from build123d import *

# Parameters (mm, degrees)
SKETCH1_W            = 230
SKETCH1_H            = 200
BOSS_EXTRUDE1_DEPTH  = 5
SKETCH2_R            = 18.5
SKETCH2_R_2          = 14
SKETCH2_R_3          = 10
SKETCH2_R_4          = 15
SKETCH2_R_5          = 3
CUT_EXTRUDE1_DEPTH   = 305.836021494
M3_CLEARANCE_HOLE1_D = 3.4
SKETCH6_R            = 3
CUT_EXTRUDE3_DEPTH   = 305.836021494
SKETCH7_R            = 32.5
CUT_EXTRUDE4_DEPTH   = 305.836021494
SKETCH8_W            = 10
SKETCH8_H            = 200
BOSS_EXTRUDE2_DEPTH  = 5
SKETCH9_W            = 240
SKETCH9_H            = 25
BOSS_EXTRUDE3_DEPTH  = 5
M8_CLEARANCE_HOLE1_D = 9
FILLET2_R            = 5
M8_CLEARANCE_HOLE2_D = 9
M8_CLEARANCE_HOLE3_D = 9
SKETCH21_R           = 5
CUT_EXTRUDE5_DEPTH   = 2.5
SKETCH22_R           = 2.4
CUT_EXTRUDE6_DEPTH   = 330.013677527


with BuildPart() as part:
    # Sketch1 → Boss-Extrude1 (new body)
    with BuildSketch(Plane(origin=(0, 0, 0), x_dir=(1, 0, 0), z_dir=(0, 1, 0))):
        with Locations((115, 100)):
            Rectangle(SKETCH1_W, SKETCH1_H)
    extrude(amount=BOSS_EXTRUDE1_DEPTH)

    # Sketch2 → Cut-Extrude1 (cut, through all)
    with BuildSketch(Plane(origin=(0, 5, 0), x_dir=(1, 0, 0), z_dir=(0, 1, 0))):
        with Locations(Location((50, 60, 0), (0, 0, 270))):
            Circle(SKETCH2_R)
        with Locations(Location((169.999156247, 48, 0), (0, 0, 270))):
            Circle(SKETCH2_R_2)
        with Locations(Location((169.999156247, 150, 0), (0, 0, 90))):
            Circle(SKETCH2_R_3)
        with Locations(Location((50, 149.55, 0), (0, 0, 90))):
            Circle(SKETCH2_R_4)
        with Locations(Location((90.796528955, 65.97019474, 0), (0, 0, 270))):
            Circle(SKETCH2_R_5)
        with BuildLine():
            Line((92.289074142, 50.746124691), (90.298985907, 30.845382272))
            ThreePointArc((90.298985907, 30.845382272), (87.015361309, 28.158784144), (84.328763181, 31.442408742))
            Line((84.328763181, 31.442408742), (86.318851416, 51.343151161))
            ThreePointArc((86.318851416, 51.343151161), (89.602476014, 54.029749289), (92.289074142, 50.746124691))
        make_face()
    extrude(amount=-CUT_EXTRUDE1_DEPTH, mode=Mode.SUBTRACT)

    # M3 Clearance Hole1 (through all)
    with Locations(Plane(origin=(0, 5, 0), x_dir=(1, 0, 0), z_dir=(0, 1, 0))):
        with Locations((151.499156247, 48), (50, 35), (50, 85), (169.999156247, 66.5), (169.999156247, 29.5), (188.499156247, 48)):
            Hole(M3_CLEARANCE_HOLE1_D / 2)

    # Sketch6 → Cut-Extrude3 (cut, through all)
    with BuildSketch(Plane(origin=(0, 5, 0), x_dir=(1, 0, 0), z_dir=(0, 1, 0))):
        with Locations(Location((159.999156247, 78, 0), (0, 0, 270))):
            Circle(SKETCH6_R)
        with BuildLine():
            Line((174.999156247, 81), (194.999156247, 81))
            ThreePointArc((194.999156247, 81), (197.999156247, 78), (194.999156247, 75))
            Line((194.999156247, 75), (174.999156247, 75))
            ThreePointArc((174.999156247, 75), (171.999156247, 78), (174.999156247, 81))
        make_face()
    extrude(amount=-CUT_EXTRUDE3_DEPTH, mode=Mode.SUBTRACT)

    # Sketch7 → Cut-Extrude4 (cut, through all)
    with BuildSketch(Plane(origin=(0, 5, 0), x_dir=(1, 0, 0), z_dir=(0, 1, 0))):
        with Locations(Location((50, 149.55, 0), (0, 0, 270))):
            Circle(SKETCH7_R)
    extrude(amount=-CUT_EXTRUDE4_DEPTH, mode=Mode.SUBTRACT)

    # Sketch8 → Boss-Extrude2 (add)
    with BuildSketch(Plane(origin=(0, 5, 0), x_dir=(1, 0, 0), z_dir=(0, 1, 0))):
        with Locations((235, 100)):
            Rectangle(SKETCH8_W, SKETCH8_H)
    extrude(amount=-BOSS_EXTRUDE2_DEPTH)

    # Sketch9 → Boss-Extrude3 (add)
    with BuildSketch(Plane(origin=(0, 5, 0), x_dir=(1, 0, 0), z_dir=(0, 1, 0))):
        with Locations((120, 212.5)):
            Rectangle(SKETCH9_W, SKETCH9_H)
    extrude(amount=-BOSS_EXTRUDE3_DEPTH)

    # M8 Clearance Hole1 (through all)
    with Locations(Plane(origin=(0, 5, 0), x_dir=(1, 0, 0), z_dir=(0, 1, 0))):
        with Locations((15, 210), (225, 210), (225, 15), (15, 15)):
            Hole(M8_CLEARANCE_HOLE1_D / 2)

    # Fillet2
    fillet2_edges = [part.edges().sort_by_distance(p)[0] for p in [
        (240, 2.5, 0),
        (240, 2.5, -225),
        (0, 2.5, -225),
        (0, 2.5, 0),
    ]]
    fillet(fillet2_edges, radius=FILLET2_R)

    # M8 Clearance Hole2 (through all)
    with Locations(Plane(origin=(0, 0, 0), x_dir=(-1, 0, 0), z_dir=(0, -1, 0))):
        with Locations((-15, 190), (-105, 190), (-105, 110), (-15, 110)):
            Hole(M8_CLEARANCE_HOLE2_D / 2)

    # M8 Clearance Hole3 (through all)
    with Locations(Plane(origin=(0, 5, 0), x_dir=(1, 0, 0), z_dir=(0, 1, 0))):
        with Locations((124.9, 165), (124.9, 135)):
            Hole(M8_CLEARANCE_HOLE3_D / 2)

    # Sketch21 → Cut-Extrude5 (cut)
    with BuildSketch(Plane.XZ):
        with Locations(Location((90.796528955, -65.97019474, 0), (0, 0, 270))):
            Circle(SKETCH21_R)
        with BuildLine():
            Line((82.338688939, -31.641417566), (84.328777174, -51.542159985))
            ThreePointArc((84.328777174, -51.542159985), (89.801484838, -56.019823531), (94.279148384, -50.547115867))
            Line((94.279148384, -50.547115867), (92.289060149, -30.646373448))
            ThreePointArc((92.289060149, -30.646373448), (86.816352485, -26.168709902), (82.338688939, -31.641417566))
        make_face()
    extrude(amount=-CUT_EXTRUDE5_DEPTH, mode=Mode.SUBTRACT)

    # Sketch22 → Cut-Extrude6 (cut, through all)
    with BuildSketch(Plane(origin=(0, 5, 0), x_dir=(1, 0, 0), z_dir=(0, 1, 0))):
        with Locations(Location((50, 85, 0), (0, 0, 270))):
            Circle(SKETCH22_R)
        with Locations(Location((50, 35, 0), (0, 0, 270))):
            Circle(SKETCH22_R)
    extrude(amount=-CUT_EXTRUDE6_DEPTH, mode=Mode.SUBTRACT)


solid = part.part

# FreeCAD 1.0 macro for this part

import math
import FreeCAD as App
import Part
import Sketcher

V = App.Vector


def edges_at(feature, points):
    """Names of the edges that pass closest to the given points."""
    edges = feature.Shape.Edges
    near = lambda p: min(range(len(edges)), key=lambda i: edges[i].distToShape(Part.Vertex(*p))[0])
    return sorted({f"Edge{near(p) + 1}" for p in points})

doc = App.newDocument("Part")
body = doc.addObject("PartDesign::Body", "Body")

sketch1 = doc.addObject("Sketcher::SketchObject", "Sketch")
body.addObject(sketch1)
sketch1.AttachmentSupport = (doc.XZ_Plane, [""])
sketch1.MapMode = "FlatFace"
sketch1.addGeometry([
    Part.LineSegment(V(0, -200, 0), V(0, 0, 0)),
    Part.LineSegment(V(0, 0, 0), V(230, 0, 0)),
    Part.LineSegment(V(230, 0, 0), V(230, -200, 0)),
    Part.LineSegment(V(230, -200, 0), V(0, -200, 0)),
], False)
sketch1.addConstraint([
    Sketcher.Constraint("Coincident", 0, 2, 1, 1),
    Sketcher.Constraint("Coincident", 1, 2, 2, 1),
    Sketcher.Constraint("Coincident", 2, 2, 3, 1),
    Sketcher.Constraint("Coincident", 3, 2, 0, 1),
    Sketcher.Constraint("Vertical", 0),
    Sketcher.Constraint("Horizontal", 1),
    Sketcher.Constraint("Vertical", 2),
    Sketcher.Constraint("Horizontal", 3),
    Sketcher.Constraint("Coincident", 0, 2, -1, 1),
    Sketcher.Constraint("DistanceX", 1, 1, 1, 2, 230.0),
    Sketcher.Constraint("DistanceY", 0, 1, 0, 2, 200.0),
])
pad1 = doc.addObject("PartDesign::Pad", "Pad")
body.addObject(pad1)
pad1.Profile = sketch1
pad1.Length = 5
pad1.Reversed = True

sketch2 = doc.addObject("Sketcher::SketchObject", "Sketch001")
body.addObject(sketch2)
sketch2.AttachmentSupport = (doc.XZ_Plane, [""])
sketch2.MapMode = "FlatFace"
sketch2.AttachmentOffset = App.Placement(V(0, 0, -5), App.Rotation())
sketch2.addGeometry([
    Part.Circle(V(50, -60, 0), V(0, 0, 1), 18.5),
    Part.Circle(V(170, -48, 0), V(0, 0, 1), 14),
    Part.Circle(V(170, -150, 0), V(0, 0, 1), 10),
    Part.Circle(V(50, -149.6, 0), V(0, 0, 1), 15),
    Part.Circle(V(90.8, -66, 0), V(0, 0, 1), 3),
    Part.LineSegment(V(90.3, -30.8, 0), V(92.3, -50.7, 0)),
    Part.ArcOfCircle(Part.Circle(V(89.3, -51, 0), V(0, 0, 1), 3), math.radians(-174), math.radians(6)),
    Part.LineSegment(V(86.3, -51.3, 0), V(84.3, -31.4, 0)),
    Part.ArcOfCircle(Part.Circle(V(87.3, -31.1, 0), V(0, 0, 1), 3), math.radians(6), math.radians(186)),
], False)
sketch2.addConstraint([
    Sketcher.Constraint("Tangent", 5, 2, 6, 2),
    Sketcher.Constraint("Tangent", 6, 1, 7, 1),
    Sketcher.Constraint("Tangent", 7, 2, 8, 2),
    Sketcher.Constraint("Tangent", 8, 1, 5, 1),
    Sketcher.Constraint("Equal", 4, 6),
    Sketcher.Constraint("Equal", 6, 8),
    Sketcher.Constraint("Vertical", 1, 3, 2, 3),
    Sketcher.Constraint("Vertical", 0, 3, 3, 3),
    Sketcher.Constraint("Diameter", 0, 37.0),
    Sketcher.Constraint("Diameter", 1, 28.0),
    Sketcher.Constraint("Diameter", 2, 20.0),
    Sketcher.Constraint("Diameter", 3, 30.0),
    Sketcher.Constraint("Diameter", 4, 6.0),
    Sketcher.Constraint("Distance", 5, 20.0),
    Sketcher.Constraint("DistanceX", -1, 1, 0, 3, 50.0),
    Sketcher.Constraint("DistanceY", 0, 3, -1, 1, 60.0),
    Sketcher.Constraint("DistanceY", 1, 3, -1, 1, 48.0),
    Sketcher.Constraint("DistanceY", 2, 3, -1, 1, 150.0),
    Sketcher.Constraint("DistanceY", 3, 3, -1, 1, 149.55),
    Sketcher.Constraint("DistanceY", 4, 3, 8, 3, 34.826299),
    Sketcher.Constraint("DistanceX", 8, 3, 5, 2, 4.9752),
    Sketcher.Constraint("DistanceX", -1, 1, 4, 3, 90.796529),
    Sketcher.Constraint("DistanceX", -1, 1, 6, 1, 86.318851),
    Sketcher.Constraint("DistanceY", 6, 1, -1, 1, 51.343151),
    Sketcher.Constraint("DistanceX", 8, 3, 1, 3, 82.685282),
])
pocket1 = doc.addObject("PartDesign::Pocket", "Pocket")
body.addObject(pocket1)
pocket1.Profile = sketch2
pocket1.Type = "ThroughAll"
pocket1.Reversed = True

sketch3 = doc.addObject("Sketcher::SketchObject", "Sketch002")
body.addObject(sketch3)
sketch3.AttachmentSupport = (doc.XZ_Plane, [""])
sketch3.MapMode = "FlatFace"
sketch3.AttachmentOffset = App.Placement(V(0, 0, -5), App.Rotation())
sketch3.addGeometry([
    Part.Circle(V(151.5, -48, 0), V(0, 0, 1), 1.7),
    Part.Circle(V(50, -35, 0), V(0, 0, 1), 1.7),
    Part.Circle(V(50, -85, 0), V(0, 0, 1), 1.7),
    Part.Circle(V(170, -66.5, 0), V(0, 0, 1), 1.7),
    Part.Circle(V(170, -29.5, 0), V(0, 0, 1), 1.7),
    Part.Circle(V(188.5, -48, 0), V(0, 0, 1), 1.7),
], False)
sketch3.addConstraint([
    Sketcher.Constraint("Equal", 0, 1),
    Sketcher.Constraint("Equal", 1, 2),
    Sketcher.Constraint("Equal", 2, 3),
    Sketcher.Constraint("Equal", 3, 4),
    Sketcher.Constraint("Equal", 4, 5),
    Sketcher.Constraint("Horizontal", 0, 3, 5, 3),
    Sketcher.Constraint("Vertical", 1, 3, 2, 3),
    Sketcher.Constraint("Vertical", 3, 3, 4, 3),
    Sketcher.Constraint("Diameter", 0, 3.4),
    Sketcher.Constraint("DistanceY", 0, 3, -1, 1, 48.0),
    Sketcher.Constraint("DistanceX", -1, 1, 1, 3, 50.0),
    Sketcher.Constraint("DistanceY", 1, 3, -1, 1, 35.0),
    Sketcher.Constraint("DistanceY", 2, 3, -1, 1, 85.0),
    Sketcher.Constraint("DistanceY", 3, 3, 4, 3, 37.0),
    Sketcher.Constraint("DistanceX", 0, 3, 5, 3, 37.0),
    Sketcher.Constraint("DistanceY", 3, 3, -1, 1, 66.5),
    Sketcher.Constraint("DistanceX", 0, 3, 3, 3, 18.5),
    Sketcher.Constraint("DistanceX", -1, 1, 0, 3, 151.499156),
])
doc.recompute()
hole = doc.addObject("PartDesign::Hole", "Hole")
body.addObject(hole)
hole.Profile = sketch3
hole.ThreadType = "None"
hole.Diameter = 3.4
hole.DepthType = "ThroughAll"
hole.Reversed = True

sketch4 = doc.addObject("Sketcher::SketchObject", "Sketch003")
body.addObject(sketch4)
sketch4.AttachmentSupport = (doc.XZ_Plane, [""])
sketch4.MapMode = "FlatFace"
sketch4.AttachmentOffset = App.Placement(V(0, 0, -5), App.Rotation())
sketch4.addGeometry([
    Part.Circle(V(160, -78, 0), V(0, 0, 1), 3),
    Part.LineSegment(V(195, -81, 0), V(175, -81, 0)),
    Part.ArcOfCircle(Part.Circle(V(175, -78, 0), V(0, 0, 1), 3), math.radians(90), math.radians(270)),
    Part.LineSegment(V(175, -75, 0), V(195, -75, 0)),
    Part.ArcOfCircle(Part.Circle(V(195, -78, 0), V(0, 0, 1), 3), math.radians(-90), math.radians(90)),
], False)
sketch4.addConstraint([
    Sketcher.Constraint("Tangent", 1, 2, 2, 2),
    Sketcher.Constraint("Tangent", 2, 1, 3, 1),
    Sketcher.Constraint("Tangent", 3, 2, 4, 2),
    Sketcher.Constraint("Tangent", 4, 1, 1, 1),
    Sketcher.Constraint("Horizontal", 1),
    Sketcher.Constraint("Horizontal", 3),
    Sketcher.Constraint("Equal", 0, 2),
    Sketcher.Constraint("Horizontal", 0, 3, 2, 3),
    Sketcher.Constraint("Diameter", 0, 6.0),
    Sketcher.Constraint("DistanceX", 1, 2, 1, 1, 20.0),
    Sketcher.Constraint("DistanceY", 0, 3, -1, 1, 78.0),
    Sketcher.Constraint("DistanceX", 0, 3, 2, 3, 15.0),
    Sketcher.Constraint("DistanceX", -1, 1, 0, 3, 159.999156),
])
pocket2 = doc.addObject("PartDesign::Pocket", "Pocket001")
body.addObject(pocket2)
pocket2.Profile = sketch4
pocket2.Type = "ThroughAll"
pocket2.Reversed = True

sketch5 = doc.addObject("Sketcher::SketchObject", "Sketch004")
body.addObject(sketch5)
sketch5.AttachmentSupport = (doc.XZ_Plane, [""])
sketch5.MapMode = "FlatFace"
sketch5.AttachmentOffset = App.Placement(V(0, 0, -5), App.Rotation())
sketch5.addGeometry(Part.Circle(V(50, -150, 0), V(0, 0, 1), 32), False)
sketch5.addConstraint([
    Sketcher.Constraint("Diameter", 0, 65.0),
    Sketcher.Constraint("DistanceX", -1, 1, 0, 3, 50.0),
    Sketcher.Constraint("DistanceY", 0, 3, -1, 1, 149.55),
])
pocket3 = doc.addObject("PartDesign::Pocket", "Pocket002")
body.addObject(pocket3)
pocket3.Profile = sketch5
pocket3.Type = "ThroughAll"
pocket3.Reversed = True

sketch6 = doc.addObject("Sketcher::SketchObject", "Sketch005")
body.addObject(sketch6)
sketch6.AttachmentSupport = (doc.XZ_Plane, [""])
sketch6.MapMode = "FlatFace"
sketch6.AttachmentOffset = App.Placement(V(0, 0, -5), App.Rotation())
sketch6.addGeometry([
    Part.LineSegment(V(230, -200, 0), V(230, 0, 0)),
    Part.LineSegment(V(230, 0, 0), V(240, 0, 0)),
    Part.LineSegment(V(240, 0, 0), V(240, -200, 0)),
    Part.LineSegment(V(240, -200, 0), V(230, -200, 0)),
], False)
sketch6.addConstraint([
    Sketcher.Constraint("Coincident", 0, 2, 1, 1),
    Sketcher.Constraint("Coincident", 1, 2, 2, 1),
    Sketcher.Constraint("Coincident", 2, 2, 3, 1),
    Sketcher.Constraint("Coincident", 3, 2, 0, 1),
    Sketcher.Constraint("Vertical", 0),
    Sketcher.Constraint("Horizontal", 1),
    Sketcher.Constraint("Vertical", 2),
    Sketcher.Constraint("Horizontal", 3),
    Sketcher.Constraint("PointOnObject", 0, 2, -1),
    Sketcher.Constraint("DistanceX", 1, 1, 1, 2, 10.0),
    Sketcher.Constraint("DistanceY", 0, 1, 0, 2, 200.0),
    Sketcher.Constraint("DistanceX", -1, 1, 0, 2, 230.0),
])
pad2 = doc.addObject("PartDesign::Pad", "Pad001")
body.addObject(pad2)
pad2.Profile = sketch6
pad2.Length = 5

sketch7 = doc.addObject("Sketcher::SketchObject", "Sketch006")
body.addObject(sketch7)
sketch7.AttachmentSupport = (doc.XZ_Plane, [""])
sketch7.MapMode = "FlatFace"
sketch7.AttachmentOffset = App.Placement(V(0, 0, -5), App.Rotation())
sketch7.addGeometry([
    Part.LineSegment(V(0, -225, 0), V(0, -200, 0)),
    Part.LineSegment(V(0, -200, 0), V(240, -200, 0)),
    Part.LineSegment(V(240, -200, 0), V(240, -225, 0)),
    Part.LineSegment(V(240, -225, 0), V(0, -225, 0)),
], False)
sketch7.addConstraint([
    Sketcher.Constraint("Coincident", 0, 2, 1, 1),
    Sketcher.Constraint("Coincident", 1, 2, 2, 1),
    Sketcher.Constraint("Coincident", 2, 2, 3, 1),
    Sketcher.Constraint("Coincident", 3, 2, 0, 1),
    Sketcher.Constraint("Vertical", 0),
    Sketcher.Constraint("Horizontal", 1),
    Sketcher.Constraint("Vertical", 2),
    Sketcher.Constraint("Horizontal", 3),
    Sketcher.Constraint("PointOnObject", 0, 2, -2),
    Sketcher.Constraint("DistanceX", 1, 1, 1, 2, 240.0),
    Sketcher.Constraint("DistanceY", 0, 1, 0, 2, 25.0),
    Sketcher.Constraint("DistanceY", 0, 2, -1, 1, 200.0),
])
pad3 = doc.addObject("PartDesign::Pad", "Pad002")
body.addObject(pad3)
pad3.Profile = sketch7
pad3.Length = 5

sketch8 = doc.addObject("Sketcher::SketchObject", "Sketch007")
body.addObject(sketch8)
sketch8.AttachmentSupport = (doc.XZ_Plane, [""])
sketch8.MapMode = "FlatFace"
sketch8.AttachmentOffset = App.Placement(V(0, 0, -5), App.Rotation())
sketch8.addGeometry([
    Part.Circle(V(15, -210, 0), V(0, 0, 1), 4.5),
    Part.Circle(V(225, -210, 0), V(0, 0, 1), 4.5),
    Part.Circle(V(225, -15, 0), V(0, 0, 1), 4.5),
    Part.Circle(V(15, -15, 0), V(0, 0, 1), 4.5),
], False)
sketch8.addConstraint([
    Sketcher.Constraint("Equal", 0, 1),
    Sketcher.Constraint("Equal", 1, 2),
    Sketcher.Constraint("Equal", 2, 3),
    Sketcher.Constraint("Horizontal", 0, 3, 1, 3),
    Sketcher.Constraint("Horizontal", 2, 3, 3, 3),
    Sketcher.Constraint("Vertical", 1, 3, 2, 3),
    Sketcher.Constraint("Vertical", 0, 3, 3, 3),
    Sketcher.Constraint("Diameter", 0, 9.0),
    Sketcher.Constraint("DistanceX", -1, 1, 0, 3, 15.0),
    Sketcher.Constraint("DistanceY", 0, 3, -1, 1, 210.0),
    Sketcher.Constraint("DistanceX", -1, 1, 1, 3, 225.0),
    Sketcher.Constraint("DistanceY", 2, 3, -1, 1, 15.0),
])
doc.recompute()
hole2 = doc.addObject("PartDesign::Hole", "Hole001")
body.addObject(hole2)
hole2.Profile = sketch8
hole2.ThreadType = "None"
hole2.Diameter = 9
hole2.DepthType = "ThroughAll"
hole2.Reversed = True
doc.recompute()

fillet = doc.addObject("PartDesign::Fillet", "Fillet")
body.addObject(fillet)
fillet.Base = (hole2, edges_at(hole2, [
    (240, 2.5, 0),
    (240, 2.5, -225),
    (0, 2.5, -225),
    (0, 2.5, 0),
]))
fillet.Radius = 5

sketch9 = doc.addObject("Sketcher::SketchObject", "Sketch008")
body.addObject(sketch9)
sketch9.AttachmentSupport = (doc.XZ_Plane, [""])
sketch9.MapMode = "FlatFace"
sketch9.addGeometry([
    Part.Circle(V(15, -190, 0), V(0, 0, 1), 4.5),
    Part.Circle(V(105, -190, 0), V(0, 0, 1), 4.5),
    Part.Circle(V(105, -110, 0), V(0, 0, 1), 4.5),
    Part.Circle(V(15, -110, 0), V(0, 0, 1), 4.5),
], False)
sketch9.addConstraint([
    Sketcher.Constraint("Equal", 0, 1),
    Sketcher.Constraint("Equal", 1, 2),
    Sketcher.Constraint("Equal", 2, 3),
    Sketcher.Constraint("Horizontal", 0, 3, 1, 3),
    Sketcher.Constraint("Horizontal", 2, 3, 3, 3),
    Sketcher.Constraint("Vertical", 1, 3, 2, 3),
    Sketcher.Constraint("Vertical", 0, 3, 3, 3),
    Sketcher.Constraint("Diameter", 0, 9.0),
    Sketcher.Constraint("DistanceX", -1, 1, 0, 3, 15.0),
    Sketcher.Constraint("DistanceY", 0, 3, -1, 1, 190.0),
    Sketcher.Constraint("DistanceX", -1, 1, 1, 3, 105.0),
    Sketcher.Constraint("DistanceY", 2, 3, -1, 1, 110.0),
])
doc.recompute()
hole3 = doc.addObject("PartDesign::Hole", "Hole002")
body.addObject(hole3)
hole3.Profile = sketch9
hole3.ThreadType = "None"
hole3.Diameter = 9
hole3.DepthType = "ThroughAll"

sketch10 = doc.addObject("Sketcher::SketchObject", "Sketch009")
body.addObject(sketch10)
sketch10.AttachmentSupport = (doc.XZ_Plane, [""])
sketch10.MapMode = "FlatFace"
sketch10.AttachmentOffset = App.Placement(V(0, 0, -5), App.Rotation())
sketch10.addGeometry([
    Part.Circle(V(124.9, -165, 0), V(0, 0, 1), 4.5),
    Part.Circle(V(124.9, -135, 0), V(0, 0, 1), 4.5),
], False)
sketch10.addConstraint([
    Sketcher.Constraint("Equal", 0, 1),
    Sketcher.Constraint("Vertical", 0, 3, 1, 3),
    Sketcher.Constraint("Diameter", 0, 9.0),
    Sketcher.Constraint("DistanceY", 0, 3, -1, 1, 165.0),
    Sketcher.Constraint("DistanceY", 1, 3, -1, 1, 135.0),
    Sketcher.Constraint("DistanceX", -1, 1, 0, 3, 124.9),
])
doc.recompute()
hole4 = doc.addObject("PartDesign::Hole", "Hole003")
body.addObject(hole4)
hole4.Profile = sketch10
hole4.ThreadType = "None"
hole4.Diameter = 9
hole4.DepthType = "ThroughAll"
hole4.Reversed = True

sketch11 = doc.addObject("Sketcher::SketchObject", "Sketch010")
body.addObject(sketch11)
sketch11.AttachmentSupport = (doc.XZ_Plane, [""])
sketch11.MapMode = "FlatFace"
sketch11.addGeometry([
    Part.Circle(V(91, -66, 0), V(0, 0, 1), 5),
    Part.LineSegment(V(82, -32, 0), V(84, -52, 0)),
    Part.ArcOfCircle(Part.Circle(V(89, -51, 0), V(0, 0, 1), 5), math.radians(-174), math.radians(6)),
    Part.LineSegment(V(94, -51, 0), V(92, -31, 0)),
    Part.ArcOfCircle(Part.Circle(V(87, -31, 0), V(0, 0, 1), 5), math.radians(6), math.radians(186)),
], False)
sketch11.addConstraint([
    Sketcher.Constraint("Tangent", 1, 2, 2, 1),
    Sketcher.Constraint("Tangent", 2, 2, 3, 1),
    Sketcher.Constraint("Tangent", 3, 2, 4, 1),
    Sketcher.Constraint("Tangent", 4, 2, 1, 1),
    Sketcher.Constraint("Equal", 0, 2),
    Sketcher.Constraint("Equal", 2, 4),
    Sketcher.Constraint("Diameter", 0, 10.0),
    Sketcher.Constraint("Distance", 1, 20.0),
    Sketcher.Constraint("DistanceY", 0, 3, 4, 3, 34.826299),
    Sketcher.Constraint("DistanceY", 2, 2, 4, 2, 18.905698),
    Sketcher.Constraint("DistanceX", -1, 1, 0, 3, 90.796529),
    Sketcher.Constraint("DistanceY", 1, 2, -1, 1, 51.54216),
    Sketcher.Constraint("DistanceX", -1, 1, 2, 2, 94.279148),
])
pocket4 = doc.addObject("PartDesign::Pocket", "Pocket003")
body.addObject(pocket4)
pocket4.Profile = sketch11
pocket4.Length = 2.5

sketch12 = doc.addObject("Sketcher::SketchObject", "Sketch011")
body.addObject(sketch12)
sketch12.AttachmentSupport = (doc.XZ_Plane, [""])
sketch12.MapMode = "FlatFace"
sketch12.AttachmentOffset = App.Placement(V(0, 0, -5), App.Rotation())
sketch12.addGeometry([
    Part.Circle(V(50, -85, 0), V(0, 0, 1), 2.4),
    Part.Circle(V(50, -35, 0), V(0, 0, 1), 2.4),
], False)
sketch12.addConstraint([
    Sketcher.Constraint("Equal", 0, 1),
    Sketcher.Constraint("Vertical", 0, 3, 1, 3),
    Sketcher.Constraint("Diameter", 0, 4.8),
    Sketcher.Constraint("DistanceX", -1, 1, 0, 3, 50.0),
    Sketcher.Constraint("DistanceY", 0, 3, -1, 1, 85.0),
    Sketcher.Constraint("DistanceY", 1, 3, -1, 1, 35.0),
])
pocket5 = doc.addObject("PartDesign::Pocket", "Pocket004")
body.addObject(pocket5)
pocket5.Profile = sketch12
pocket5.Type = "ThroughAll"
pocket5.Reversed = True

doc.recompute()
